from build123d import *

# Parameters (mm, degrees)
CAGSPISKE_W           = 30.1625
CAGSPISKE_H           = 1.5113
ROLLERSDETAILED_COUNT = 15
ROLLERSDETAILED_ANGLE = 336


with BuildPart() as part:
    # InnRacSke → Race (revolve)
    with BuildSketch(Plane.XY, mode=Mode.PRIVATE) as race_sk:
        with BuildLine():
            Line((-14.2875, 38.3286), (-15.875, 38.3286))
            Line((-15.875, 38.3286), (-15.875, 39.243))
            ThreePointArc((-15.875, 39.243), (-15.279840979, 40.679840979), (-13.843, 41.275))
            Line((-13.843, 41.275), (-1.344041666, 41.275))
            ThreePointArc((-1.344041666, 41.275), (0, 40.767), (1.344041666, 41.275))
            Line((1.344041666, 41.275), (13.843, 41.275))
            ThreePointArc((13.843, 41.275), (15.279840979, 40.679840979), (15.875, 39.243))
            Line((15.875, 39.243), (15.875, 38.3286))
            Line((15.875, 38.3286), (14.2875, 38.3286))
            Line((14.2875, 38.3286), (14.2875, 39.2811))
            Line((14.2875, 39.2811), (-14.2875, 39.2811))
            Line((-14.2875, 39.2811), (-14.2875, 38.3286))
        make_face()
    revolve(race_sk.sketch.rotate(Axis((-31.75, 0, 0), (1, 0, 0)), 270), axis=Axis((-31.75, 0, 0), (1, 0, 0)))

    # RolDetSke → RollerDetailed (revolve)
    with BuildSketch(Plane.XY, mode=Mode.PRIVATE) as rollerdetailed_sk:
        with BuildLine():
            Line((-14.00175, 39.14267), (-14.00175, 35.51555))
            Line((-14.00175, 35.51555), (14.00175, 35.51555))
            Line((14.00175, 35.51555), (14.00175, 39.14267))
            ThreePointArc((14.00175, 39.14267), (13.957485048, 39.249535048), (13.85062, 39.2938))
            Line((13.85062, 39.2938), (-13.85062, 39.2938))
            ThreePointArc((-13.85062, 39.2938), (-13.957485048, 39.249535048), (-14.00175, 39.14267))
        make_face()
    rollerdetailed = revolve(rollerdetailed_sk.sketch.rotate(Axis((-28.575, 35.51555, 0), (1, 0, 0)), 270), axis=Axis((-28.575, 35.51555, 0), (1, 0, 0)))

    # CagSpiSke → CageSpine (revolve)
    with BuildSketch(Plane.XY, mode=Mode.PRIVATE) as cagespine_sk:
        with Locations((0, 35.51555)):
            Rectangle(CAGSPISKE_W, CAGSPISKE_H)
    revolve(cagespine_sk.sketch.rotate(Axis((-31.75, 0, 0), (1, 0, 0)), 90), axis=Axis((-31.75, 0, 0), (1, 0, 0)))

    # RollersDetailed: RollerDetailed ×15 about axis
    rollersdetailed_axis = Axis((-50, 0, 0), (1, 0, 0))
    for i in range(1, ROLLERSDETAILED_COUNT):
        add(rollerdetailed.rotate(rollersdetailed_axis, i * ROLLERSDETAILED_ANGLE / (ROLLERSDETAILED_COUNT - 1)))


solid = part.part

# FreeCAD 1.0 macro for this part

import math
import FreeCAD as App
import Part
import Sketcher
Q = App.Units.Quantity

doc = App.newDocument("Part")
body = doc.addObject("PartDesign::Body", "Body")

# Sketch on XY plane
sketch1 = body.newObject("Sketcher::SketchObject", "Sketch")
sketch1.AttachmentSupport = (doc.getObject("XY_Plane"), [""])
sketch1.MapMode = "FlatFace"
sketch1.addGeometry([
    Part.LineSegment(App.Vector(-15.9, 38.3, 0), App.Vector(-14.3, 38.3, 0)),  # 0
    Part.LineSegment(App.Vector(-14.3, 38.3, 0), App.Vector(-14.3, 39.3, 0)),  # 1
    Part.LineSegment(App.Vector(-14.3, 39.3, 0), App.Vector(14.3, 39.3, 0)),  # 2
    Part.LineSegment(App.Vector(14.3, 39.3, 0), App.Vector(14.3, 38.3, 0)),  # 3
    Part.LineSegment(App.Vector(14.3, 38.3, 0), App.Vector(15.9, 38.3, 0)),  # 4
    Part.LineSegment(App.Vector(15.9, 38.3, 0), App.Vector(15.9, 39.2, 0)),  # 5
    Part.ArcOfCircle(Part.Circle(App.Vector(13.8, 39.2, 0), App.Vector(0, 0, 1), 2), math.radians(0), math.radians(90)),  # 6
    Part.LineSegment(App.Vector(13.8, 41.3, 0), App.Vector(1.3, 41.3, 0)),  # 7
    Part.ArcOfCircle(Part.Circle(App.Vector(0, 42.8, 0), App.Vector(0, 0, 1), 2), math.radians(-131), math.radians(-49)),  # 8
    Part.LineSegment(App.Vector(-1.3, 41.3, 0), App.Vector(-13.8, 41.3, 0)),  # 9
    Part.ArcOfCircle(Part.Circle(App.Vector(-13.8, 39.2, 0), App.Vector(0, 0, 1), 2), math.radians(90), math.radians(180)),  # 10
    Part.LineSegment(App.Vector(-15.9, 39.2, 0), App.Vector(-15.9, 38.3, 0)),  # 11
], False)
sketch1.addConstraint([
    Sketcher.Constraint("Coincident", 0, 2, 1, 1),
    Sketcher.Constraint("Coincident", 1, 2, 2, 1),
    Sketcher.Constraint("Coincident", 2, 2, 3, 1),
    Sketcher.Constraint("Coincident", 3, 2, 4, 1),
    Sketcher.Constraint("Coincident", 4, 2, 5, 1),
    Sketcher.Constraint("Tangent", 5, 2, 6, 1),
    Sketcher.Constraint("Tangent", 6, 2, 7, 1),
    Sketcher.Constraint("Coincident", 7, 2, 8, 2),
    Sketcher.Constraint("Coincident", 8, 1, 9, 1),
    Sketcher.Constraint("Tangent", 9, 2, 10, 1),
    Sketcher.Constraint("Tangent", 10, 2, 11, 1),
    Sketcher.Constraint("Coincident", 11, 2, 0, 1),
    Sketcher.Constraint("Horizontal", 0),
    Sketcher.Constraint("Vertical", 1),
    Sketcher.Constraint("Horizontal", 2),
    Sketcher.Constraint("Vertical", 3),
    Sketcher.Constraint("Horizontal", 4),
    Sketcher.Constraint("Vertical", 5),
    Sketcher.Constraint("Horizontal", 7),
    Sketcher.Constraint("Horizontal", 9),
    Sketcher.Constraint("Vertical", 11),
    Sketcher.Constraint("Equal", 6, 8),
    Sketcher.Constraint("Equal", 8, 10),
    Sketcher.Constraint("Symmetric", 6, 3, 10, 3, -2),
    Sketcher.Constraint("Symmetric", 0, 2, 3, 2, -2),
    Sketcher.Constraint("PointOnObject", 8, 3, -2),
    Sketcher.Constraint("Radius", 6, Q("0.08 in")),
    Sketcher.Constraint("DistanceX", 0, 1, 0, 2, Q("0.0625 in")),
    Sketcher.Constraint("DistanceX", 2, 1, 2, 2, Q("1.125 in")),
    Sketcher.Constraint("DistanceY", 5, 1, 5, 2, Q("0.036 in")),
    Sketcher.Constraint("DistanceY", 6, 3, 8, 3, Q("0.14 in")),
    Sketcher.Constraint("DistanceY", 1, 1, 1, 2, Q("0.0375 in")),
    Sketcher.Constraint("DistanceY", -1, 1, 6, 3, Q("1.545 in")),
])
revolution = body.newObject("PartDesign::Revolution", "Revolution")
revolution.Profile = sketch1
revolution.ReferenceAxis = (sketch1, ["H_Axis"])
revolution.Angle = 360

# Sketch on XY plane
sketch2 = body.newObject("Sketcher::SketchObject", "Sketch001")
sketch2.AttachmentSupport = (doc.getObject("XY_Plane"), [""])
sketch2.MapMode = "FlatFace"
sketch2.addGeometry([
    Part.LineSegment(App.Vector(-14, 39.14, 0), App.Vector(-14, 35.52, 0)),  # 0
    Part.LineSegment(App.Vector(-14, 35.52, 0), App.Vector(14, 35.52, 0)),  # 1
    Part.LineSegment(App.Vector(14, 35.52, 0), App.Vector(14, 39.14, 0)),  # 2
    Part.ArcOfCircle(Part.Circle(App.Vector(13.85, 39.14, 0), App.Vector(0, 0, 1), 0.15), math.radians(0), math.radians(90)),  # 3
    Part.LineSegment(App.Vector(13.85, 39.29, 0), App.Vector(-13.85, 39.29, 0)),  # 4
    Part.ArcOfCircle(Part.Circle(App.Vector(-13.85, 39.14, 0), App.Vector(0, 0, 1), 0.15), math.radians(90), math.radians(180)),  # 5
], False)
sketch2.addGeometry(Part.LineSegment(App.Vector(-14, 35.52, 0), App.Vector(14, 35.52, 0)), True)  # axis
sketch2.addConstraint([
    Sketcher.Constraint("Coincident", 0, 2, 1, 1),
    Sketcher.Constraint("Coincident", 1, 2, 2, 1),
    Sketcher.Constraint("Tangent", 2, 2, 3, 1),
    Sketcher.Constraint("Tangent", 3, 2, 4, 1),
    Sketcher.Constraint("Tangent", 4, 2, 5, 1),
    Sketcher.Constraint("Tangent", 5, 2, 0, 1),
    Sketcher.Constraint("Vertical", 0),
    Sketcher.Constraint("Horizontal", 1),
    Sketcher.Constraint("Vertical", 2),
    Sketcher.Constraint("Horizontal", 4),
    Sketcher.Constraint("Horizontal", 6),
    Sketcher.Constraint("Coincident", 6, 1, 0, 2),
    Sketcher.Constraint("Equal", 3, 5),
    Sketcher.Constraint("Vertical", 2, 2, 6, 2),
    Sketcher.Constraint("DistanceX", 1, 1, 1, 2, Q("1.1025 in")),
    Sketcher.Constraint("DistanceX", 4, 2, 4, 1, Q("1.0906 in")),
    Sketcher.Constraint("DistanceY", 0, 2, 0, 1, Q("0.1428 in")),
    Sketcher.Constraint("DistanceY", -1, 1, 3, 2, Q("1.547 in")),
    Sketcher.Constraint("DistanceX", -1, 1, 3, 3, Q("0.5453 in")),
])
revolution2 = body.newObject("PartDesign::Revolution", "Revolution001")
revolution2.Profile = sketch2
revolution2.ReferenceAxis = (sketch2, ["Axis0"])
revolution2.Angle = 360

# Sketch on XY plane
sketch3 = body.newObject("Sketcher::SketchObject", "Sketch002")
sketch3.AttachmentSupport = (doc.getObject("XY_Plane"), [""])
sketch3.MapMode = "FlatFace"
sketch3.addGeometry([
    Part.LineSegment(App.Vector(-15.1, 36.3, 0), App.Vector(-15.1, 34.8, 0)),
    Part.LineSegment(App.Vector(-15.1, 34.8, 0), App.Vector(15.1, 34.8, 0)),
    Part.LineSegment(App.Vector(15.1, 34.8, 0), App.Vector(15.1, 36.3, 0)),
    Part.LineSegment(App.Vector(15.1, 36.3, 0), App.Vector(-15.1, 36.3, 0)),
], False)
sketch3.addConstraint([
    Sketcher.Constraint("Coincident", 0, 2, 1, 1),
    Sketcher.Constraint("Coincident", 1, 2, 2, 1),
    Sketcher.Constraint("Coincident", 2, 2, 3, 1),
    Sketcher.Constraint("Coincident", 3, 2, 0, 1),
    Sketcher.Constraint("Vertical", 0),
    Sketcher.Constraint("Horizontal", 1),
    Sketcher.Constraint("Vertical", 2),
    Sketcher.Constraint("Horizontal", 3),
    Sketcher.Constraint("DistanceX", 1, 1, 1, 2, Q("1.1875 in")),
    Sketcher.Constraint("DistanceY", 0, 2, 0, 1, Q("0.0595 in")),
    Sketcher.Constraint("DistanceX", 0, 2, -1, 1, Q("0.59375 in")),
    Sketcher.Constraint("DistanceY", -1, 1, 2, 2, Q("1.428 in")),
])
revolution3 = body.newObject("PartDesign::Revolution", "Revolution002")
revolution3.Profile = sketch3
revolution3.ReferenceAxis = (sketch3, ["H_Axis"])
revolution3.Angle = 360
doc.recompute()

polarpattern = body.newObject("PartDesign::PolarPattern", "PolarPattern")
polarpattern.Originals = [revolution2]
polarpattern.Axis = (doc.getObject("X_Axis"), [""])
polarpattern.Angle = 360
polarpattern.Occurrences = 15
body.Tip = polarpattern

doc.recompute()
